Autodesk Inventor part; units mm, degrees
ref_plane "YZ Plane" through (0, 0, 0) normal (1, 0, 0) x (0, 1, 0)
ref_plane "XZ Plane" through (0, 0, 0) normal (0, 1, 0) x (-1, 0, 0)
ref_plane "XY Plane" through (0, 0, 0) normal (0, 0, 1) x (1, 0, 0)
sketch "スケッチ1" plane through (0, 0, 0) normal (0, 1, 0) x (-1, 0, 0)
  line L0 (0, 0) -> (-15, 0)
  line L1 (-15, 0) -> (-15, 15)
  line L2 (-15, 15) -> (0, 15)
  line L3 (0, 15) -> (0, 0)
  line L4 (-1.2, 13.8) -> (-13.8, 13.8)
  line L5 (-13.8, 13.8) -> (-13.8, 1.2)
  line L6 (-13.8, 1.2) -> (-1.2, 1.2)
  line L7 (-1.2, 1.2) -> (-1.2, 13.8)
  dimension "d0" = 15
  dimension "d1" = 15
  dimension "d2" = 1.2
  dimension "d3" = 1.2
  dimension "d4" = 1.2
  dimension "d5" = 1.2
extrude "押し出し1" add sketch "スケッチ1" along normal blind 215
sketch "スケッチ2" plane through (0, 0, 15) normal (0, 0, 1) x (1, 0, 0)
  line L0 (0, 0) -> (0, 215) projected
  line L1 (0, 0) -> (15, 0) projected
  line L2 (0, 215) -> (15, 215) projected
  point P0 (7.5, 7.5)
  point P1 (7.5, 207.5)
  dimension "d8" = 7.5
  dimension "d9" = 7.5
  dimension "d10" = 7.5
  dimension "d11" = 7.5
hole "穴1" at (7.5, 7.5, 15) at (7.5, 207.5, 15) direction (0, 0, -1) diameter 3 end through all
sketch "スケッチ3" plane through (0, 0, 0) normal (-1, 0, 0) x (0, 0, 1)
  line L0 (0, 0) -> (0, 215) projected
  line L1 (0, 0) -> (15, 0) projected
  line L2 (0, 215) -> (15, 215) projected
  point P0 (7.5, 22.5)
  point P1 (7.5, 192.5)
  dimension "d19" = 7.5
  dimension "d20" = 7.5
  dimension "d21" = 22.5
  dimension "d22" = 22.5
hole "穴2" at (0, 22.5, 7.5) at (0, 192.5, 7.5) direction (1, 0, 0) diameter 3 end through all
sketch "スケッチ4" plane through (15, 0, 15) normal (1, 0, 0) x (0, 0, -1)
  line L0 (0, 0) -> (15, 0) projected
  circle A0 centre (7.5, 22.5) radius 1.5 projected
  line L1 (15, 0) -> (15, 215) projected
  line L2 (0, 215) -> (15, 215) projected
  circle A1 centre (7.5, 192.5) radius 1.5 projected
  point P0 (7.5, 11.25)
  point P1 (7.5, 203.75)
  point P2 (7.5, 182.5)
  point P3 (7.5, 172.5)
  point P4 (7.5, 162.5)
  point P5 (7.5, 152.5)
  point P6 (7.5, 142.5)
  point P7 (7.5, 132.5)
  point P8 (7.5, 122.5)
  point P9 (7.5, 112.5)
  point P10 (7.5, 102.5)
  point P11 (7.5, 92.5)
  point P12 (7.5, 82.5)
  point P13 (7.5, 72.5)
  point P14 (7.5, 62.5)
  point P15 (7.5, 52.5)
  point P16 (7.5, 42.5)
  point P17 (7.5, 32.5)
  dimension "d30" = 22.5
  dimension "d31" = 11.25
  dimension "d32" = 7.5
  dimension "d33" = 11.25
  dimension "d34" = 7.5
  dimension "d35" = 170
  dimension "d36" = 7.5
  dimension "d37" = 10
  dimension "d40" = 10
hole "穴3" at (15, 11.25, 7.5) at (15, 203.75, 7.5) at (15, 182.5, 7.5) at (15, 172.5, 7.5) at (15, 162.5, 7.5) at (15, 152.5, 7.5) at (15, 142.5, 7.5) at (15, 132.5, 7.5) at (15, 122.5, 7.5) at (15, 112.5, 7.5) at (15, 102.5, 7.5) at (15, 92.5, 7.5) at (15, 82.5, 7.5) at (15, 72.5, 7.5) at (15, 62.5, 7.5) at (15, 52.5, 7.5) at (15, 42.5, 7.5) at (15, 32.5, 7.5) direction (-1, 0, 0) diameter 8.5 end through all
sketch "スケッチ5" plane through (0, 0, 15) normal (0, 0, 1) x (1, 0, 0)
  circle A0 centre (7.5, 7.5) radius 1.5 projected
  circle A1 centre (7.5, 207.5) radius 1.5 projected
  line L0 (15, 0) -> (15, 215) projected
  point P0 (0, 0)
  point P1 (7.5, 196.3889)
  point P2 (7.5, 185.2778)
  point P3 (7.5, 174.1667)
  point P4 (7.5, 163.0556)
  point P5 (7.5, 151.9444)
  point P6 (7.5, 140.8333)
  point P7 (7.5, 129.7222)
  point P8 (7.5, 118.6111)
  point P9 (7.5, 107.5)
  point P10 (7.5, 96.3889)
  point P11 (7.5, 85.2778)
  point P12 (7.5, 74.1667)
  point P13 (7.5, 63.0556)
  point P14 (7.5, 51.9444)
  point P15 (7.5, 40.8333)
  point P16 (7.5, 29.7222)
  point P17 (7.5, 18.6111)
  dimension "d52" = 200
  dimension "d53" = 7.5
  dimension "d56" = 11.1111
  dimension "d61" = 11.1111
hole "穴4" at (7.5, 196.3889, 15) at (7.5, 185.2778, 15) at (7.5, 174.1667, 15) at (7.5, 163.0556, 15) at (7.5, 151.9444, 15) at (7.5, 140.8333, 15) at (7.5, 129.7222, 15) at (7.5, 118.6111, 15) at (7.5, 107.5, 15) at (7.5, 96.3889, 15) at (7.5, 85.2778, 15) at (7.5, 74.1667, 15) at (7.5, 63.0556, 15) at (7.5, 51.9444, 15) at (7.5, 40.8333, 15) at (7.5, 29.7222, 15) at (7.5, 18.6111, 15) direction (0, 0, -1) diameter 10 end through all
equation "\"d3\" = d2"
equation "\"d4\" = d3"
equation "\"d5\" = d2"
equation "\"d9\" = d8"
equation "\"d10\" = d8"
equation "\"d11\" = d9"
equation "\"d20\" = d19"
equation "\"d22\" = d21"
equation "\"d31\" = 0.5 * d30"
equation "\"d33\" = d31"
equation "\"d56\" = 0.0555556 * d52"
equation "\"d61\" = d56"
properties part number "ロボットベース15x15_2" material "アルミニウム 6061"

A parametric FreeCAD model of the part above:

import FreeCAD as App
import Part
import Sketcher

V = App.Vector
Q = App.Units.Quantity

doc = App.newDocument("Part")
body = doc.addObject("PartDesign::Body", "Body")

# Sketch on XZ plane
sketch1 = body.newObject("Sketcher::SketchObject", "Sketch")
sketch1.AttachmentSupport = (doc.getObject("XZ_Plane"), [""])
sketch1.MapMode = "FlatFace"
sketch1.addGeometry(Part.LineSegment(V(15, 0, 0), V(0, 0, 0)), False)
sketch1.addGeometry(Part.LineSegment(V(0, 0, 0), V(0, 15, 0)), False)
sketch1.addGeometry(Part.LineSegment(V(0, 15, 0), V(15, 15, 0)), False)
sketch1.addGeometry(Part.LineSegment(V(15, 15, 0), V(15, 0, 0)), False)
sketch1.addGeometry(Part.LineSegment(V(14, 14, 0), V(1, 14, 0)), False)
sketch1.addGeometry(Part.LineSegment(V(1, 14, 0), V(1, 1, 0)), False)
sketch1.addGeometry(Part.LineSegment(V(1, 1, 0), V(14, 1, 0)), False)
sketch1.addGeometry(Part.LineSegment(V(14, 1, 0), V(14, 14, 0)), False)
sketch1.addConstraint(Sketcher.Constraint("Coincident", 0, 2, 1, 1))
sketch1.addConstraint(Sketcher.Constraint("Coincident", 1, 2, 2, 1))
sketch1.addConstraint(Sketcher.Constraint("Coincident", 2, 2, 3, 1))
sketch1.addConstraint(Sketcher.Constraint("Coincident", 3, 2, 0, 1))
sketch1.addConstraint(Sketcher.Constraint("Coincident", 4, 2, 5, 1))
sketch1.addConstraint(Sketcher.Constraint("Coincident", 5, 2, 6, 1))
sketch1.addConstraint(Sketcher.Constraint("Coincident", 6, 2, 7, 1))
sketch1.addConstraint(Sketcher.Constraint("Coincident", 7, 2, 4, 1))
sketch1.addConstraint(Sketcher.Constraint("Horizontal", 0))
sketch1.addConstraint(Sketcher.Constraint("Vertical", 1))
sketch1.addConstraint(Sketcher.Constraint("Horizontal", 2))
sketch1.addConstraint(Sketcher.Constraint("Vertical", 3))
sketch1.addConstraint(Sketcher.Constraint("Horizontal", 4))
sketch1.addConstraint(Sketcher.Constraint("Vertical", 5))
sketch1.addConstraint(Sketcher.Constraint("Horizontal", 6))
sketch1.addConstraint(Sketcher.Constraint("Vertical", 7))
sketch1.addConstraint(Sketcher.Constraint("Coincident", 0, 2, -1, 1))
sketch1.addConstraint(Sketcher.Constraint("Equal", 2, 1))
sketch1.addConstraint(Sketcher.Constraint("Equal", 6, 5))
sketch1.addConstraint(Sketcher.Constraint("DistanceX", 0, 2, 0, 1, Q("15 mm")))
sketch1.addConstraint(Sketcher.Constraint("DistanceX", -1, 1, 4, 2, Q("1.2 mm")))
sketch1.addConstraint(Sketcher.Constraint("DistanceY", -1, 1, 5, 2, Q("1.2 mm")))
sketch1.addConstraint(Sketcher.Constraint("DistanceY", 4, 2, 1, 2, Q("1.2 mm")))
pad1 = body.newObject("PartDesign::Pad", "Pad")
pad1.Profile = sketch1
pad1.Length = 215
pad1.Reversed = True

# Sketch on XY plane
sketch2 = body.newObject("Sketcher::SketchObject", "Sketch001")
sketch2.AttachmentSupport = (doc.getObject("XY_Plane"), [""])
sketch2.MapMode = "FlatFace"
sketch2.AttachmentOffset = App.Placement(V(0, 0, 15), App.Rotation())
sketch2.addGeometry(Part.Circle(V(7.5, 7.5, 0), V(0, 0, 1), 1.5), False)
sketch2.addGeometry(Part.Circle(V(7.5, 207.5, 0), V(0, 0, 1), 1.5), False)
sketch2.addConstraint(Sketcher.Constraint("Equal", 0, 1))
sketch2.addConstraint(Sketcher.Constraint("Vertical", 0, 3, 1, 3))
sketch2.addConstraint(Sketcher.Constraint("Diameter", 0, Q("3 mm")))
sketch2.addConstraint(Sketcher.Constraint("DistanceY", 0, 3, 1, 3, Q("200 mm")))
sketch2.addConstraint(Sketcher.Constraint("DistanceX", -1, 1, 0, 3, Q("7.5 mm")))
sketch2.addConstraint(Sketcher.Constraint("DistanceY", -1, 1, 0, 3, Q("7.5 mm")))
doc.recompute()
hole = body.newObject("PartDesign::Hole", "Hole")
hole.Profile = sketch2
hole.ThreadType = "None"
hole.Diameter = 3
hole.DepthType = "ThroughAll"

# Sketch on YZ plane
sketch3 = body.newObject("Sketcher::SketchObject", "Sketch002")
sketch3.AttachmentSupport = (doc.getObject("YZ_Plane"), [""])
sketch3.MapMode = "FlatFace"
sketch3.addGeometry(Part.Circle(V(22.5, 7.5, 0), V(0, 0, 1), 1.5), False)
sketch3.addGeometry(Part.Circle(V(192.5, 7.5, 0), V(0, 0, 1), 1.5), False)
sketch3.addConstraint(Sketcher.Constraint("Equal", 0, 1))
sketch3.addConstraint(Sketcher.Constraint("Horizontal", 0, 3, 1, 3))
sketch3.addConstraint(Sketcher.Constraint("Diameter", 0, Q("3 mm")))
sketch3.addConstraint(Sketcher.Constraint("DistanceX", 0, 3, 1, 3, Q("170 mm")))
sketch3.addConstraint(Sketcher.Constraint("DistanceX", -1, 1, 0, 3, Q("22.5 mm")))
sketch3.addConstraint(Sketcher.Constraint("DistanceY", -1, 1, 0, 3, Q("7.5 mm")))
doc.recompute()
hole2 = body.newObject("PartDesign::Hole", "Hole001")
hole2.Profile = sketch3
hole2.ThreadType = "None"
hole2.Diameter = 3
hole2.DepthType = "ThroughAll"
hole2.Reversed = True

# Sketch on YZ plane
sketch4 = body.newObject("Sketcher::SketchObject", "Sketch003")
sketch4.AttachmentSupport = (doc.getObject("YZ_Plane"), [""])
sketch4.MapMode = "FlatFace"
sketch4.AttachmentOffset = App.Placement(V(0, 0, 15), App.Rotation())
sketch4.addGeometry(Part.Circle(V(11.2, 7.5, 0), V(0, 0, 1), 4.2), False)
sketch4.addGeometry(Part.Circle(V(203.8, 7.5, 0), V(0, 0, 1), 4.2), False)
sketch4.addGeometry(Part.Circle(V(182.5, 7.5, 0), V(0, 0, 1), 4.2), False)
sketch4.addGeometry(Part.Circle(V(172.5, 7.5, 0), V(0, 0, 1), 4.2), False)
sketch4.addGeometry(Part.Circle(V(162.5, 7.5, 0), V(0, 0, 1), 4.2), False)
sketch4.addGeometry(Part.Circle(V(152.5, 7.5, 0), V(0, 0, 1), 4.2), False)
sketch4.addGeometry(Part.Circle(V(142.5, 7.5, 0), V(0, 0, 1), 4.2), False)
sketch4.addGeometry(Part.Circle(V(132.5, 7.5, 0), V(0, 0, 1), 4.2), False)
sketch4.addGeometry(Part.Circle(V(122.5, 7.5, 0), V(0, 0, 1), 4.2), False)
sketch4.addGeometry(Part.Circle(V(112.5, 7.5, 0), V(0, 0, 1), 4.2), False)
sketch4.addGeometry(Part.Circle(V(102.5, 7.5, 0), V(0, 0, 1), 4.2), False)
sketch4.addGeometry(Part.Circle(V(92.5, 7.5, 0), V(0, 0, 1), 4.2), False)
sketch4.addGeometry(Part.Circle(V(82.5, 7.5, 0), V(0, 0, 1), 4.2), False)
sketch4.addGeometry(Part.Circle(V(72.5, 7.5, 0), V(0, 0, 1), 4.2), False)
sketch4.addGeometry(Part.Circle(V(62.5, 7.5, 0), V(0, 0, 1), 4.2), False)
sketch4.addGeometry(Part.Circle(V(52.5, 7.5, 0), V(0, 0, 1), 4.2), False)
sketch4.addGeometry(Part.Circle(V(42.5, 7.5, 0), V(0, 0, 1), 4.2), False)
sketch4.addGeometry(Part.Circle(V(32.5, 7.5, 0), V(0, 0, 1), 4.2), False)
sketch4.addConstraint(Sketcher.Constraint("Equal", 0, 1))
sketch4.addConstraint(Sketcher.Constraint("Equal", 1, 2))
sketch4.addConstraint(Sketcher.Constraint("Equal", 2, 3))
sketch4.addConstraint(Sketcher.Constraint("Equal", 3, 4))
sketch4.addConstraint(Sketcher.Constraint("Equal", 4, 5))
sketch4.addConstraint(Sketcher.Constraint("Equal", 5, 6))
sketch4.addConstraint(Sketcher.Constraint("Equal", 6, 7))
sketch4.addConstraint(Sketcher.Constraint("Equal", 7, 8))
sketch4.addConstraint(Sketcher.Constraint("Equal", 8, 9))
sketch4.addConstraint(Sketcher.Constraint("Equal", 9, 10))
sketch4.addConstraint(Sketcher.Constraint("Equal", 10, 11))
sketch4.addConstraint(Sketcher.Constraint("Equal", 11, 12))
sketch4.addConstraint(Sketcher.Constraint("Equal", 12, 13))
sketch4.addConstraint(Sketcher.Constraint("Equal", 13, 14))
sketch4.addConstraint(Sketcher.Constraint("Equal", 14, 15))
sketch4.addConstraint(Sketcher.Constraint("Equal", 15, 16))
sketch4.addConstraint(Sketcher.Constraint("Equal", 16, 17))
sketch4.addConstraint(Sketcher.Constraint("Horizontal", 0, 3, 1, 3))
sketch4.addConstraint(Sketcher.Constraint("Horizontal", 1, 3, 2, 3))
sketch4.addConstraint(Sketcher.Constraint("Horizontal", 2, 3, 3, 3))
sketch4.addConstraint(Sketcher.Constraint("Horizontal", 3, 3, 4, 3))
sketch4.addConstraint(Sketcher.Constraint("Horizontal", 4, 3, 5, 3))
sketch4.addConstraint(Sketcher.Constraint("Horizontal", 5, 3, 6, 3))
sketch4.addConstraint(Sketcher.Constraint("Horizontal", 6, 3, 7, 3))
sketch4.addConstraint(Sketcher.Constraint("Horizontal", 7, 3, 8, 3))
sketch4.addConstraint(Sketcher.Constraint("Horizontal", 8, 3, 9, 3))
sketch4.addConstraint(Sketcher.Constraint("Horizontal", 9, 3, 10, 3))
sketch4.addConstraint(Sketcher.Constraint("Horizontal", 10, 3, 11, 3))
sketch4.addConstraint(Sketcher.Constraint("Horizontal", 11, 3, 12, 3))
sketch4.addConstraint(Sketcher.Constraint("Horizontal", 12, 3, 13, 3))
sketch4.addConstraint(Sketcher.Constraint("Horizontal", 13, 3, 14, 3))
sketch4.addConstraint(Sketcher.Constraint("Horizontal", 14, 3, 15, 3))
sketch4.addConstraint(Sketcher.Constraint("Horizontal", 15, 3, 16, 3))
sketch4.addConstraint(Sketcher.Constraint("Horizontal", 16, 3, 17, 3))
sketch4.addConstraint(Sketcher.Constraint("Diameter", 0, Q("8.5 mm")))
sketch4.addConstraint(Sketcher.Constraint("DistanceX", 3, 3, 2, 3, Q("10 mm")))
sketch4.addConstraint(Sketcher.Constraint("DistanceX", 4, 3, 3, 3, Q("10 mm")))
sketch4.addConstraint(Sketcher.Constraint("DistanceX", 5, 3, 4, 3, Q("10 mm")))
sketch4.addConstraint(Sketcher.Constraint("DistanceX", 6, 3, 5, 3, Q("10 mm")))
sketch4.addConstraint(Sketcher.Constraint("DistanceX", 7, 3, 6, 3, Q("10 mm")))
sketch4.addConstraint(Sketcher.Constraint("DistanceX", 8, 3, 7, 3, Q("10 mm")))
sketch4.addConstraint(Sketcher.Constraint("DistanceX", 9, 3, 8, 3, Q("10 mm")))
sketch4.addConstraint(Sketcher.Constraint("DistanceX", 10, 3, 9, 3, Q("10 mm")))
sketch4.addConstraint(Sketcher.Constraint("DistanceX", 11, 3, 10, 3, Q("10 mm")))
sketch4.addConstraint(Sketcher.Constraint("DistanceX", 12, 3, 11, 3, Q("10 mm")))
sketch4.addConstraint(Sketcher.Constraint("DistanceX", 13, 3, 12, 3, Q("10 mm")))
sketch4.addConstraint(Sketcher.Constraint("DistanceX", 14, 3, 13, 3, Q("10 mm")))
sketch4.addConstraint(Sketcher.Constraint("DistanceX", 15, 3, 14, 3, Q("10 mm")))
sketch4.addConstraint(Sketcher.Constraint("DistanceX", 16, 3, 15, 3, Q("10 mm")))
sketch4.addConstraint(Sketcher.Constraint("DistanceX", 17, 3, 16, 3, Q("10 mm")))
sketch4.addConstraint(Sketcher.Constraint("DistanceY", -1, 1, 0, 3, Q("7.5 mm")))
sketch4.addConstraint(Sketcher.Constraint("DistanceX", -1, 1, 2, 3, Q("182.5 mm")))
sketch4.addConstraint(Sketcher.Constraint("DistanceX", 0, 3, 1, 3, Q("192.5 mm")))
sketch4.addConstraint(Sketcher.Constraint("DistanceX", -1, 1, 0, 3, Q("11.25 mm")))
doc.recompute()
hole3 = body.newObject("PartDesign::Hole", "Hole002")
hole3.Profile = sketch4
hole3.ThreadType = "None"
hole3.Diameter = 8.5
hole3.DepthType = "ThroughAll"

# Sketch on XY plane
sketch5 = body.newObject("Sketcher::SketchObject", "Sketch004")
sketch5.AttachmentSupport = (doc.getObject("XY_Plane"), [""])
sketch5.MapMode = "FlatFace"
sketch5.AttachmentOffset = App.Placement(V(0, 0, 15), App.Rotation())
sketch5.addGeometry(Part.Circle(V(8, 196, 0), V(0, 0, 1), 5), False)
sketch5.addGeometry(Part.Circle(V(8, 185, 0), V(0, 0, 1), 5), False)
sketch5.addGeometry(Part.Circle(V(8, 174, 0), V(0, 0, 1), 5), False)
sketch5.addGeometry(Part.Circle(V(8, 163, 0), V(0, 0, 1), 5), False)
sketch5.addGeometry(Part.Circle(V(8, 152, 0), V(0, 0, 1), 5), False)
sketch5.addGeometry(Part.Circle(V(8, 141, 0), V(0, 0, 1), 5), False)
sketch5.addGeometry(Part.Circle(V(8, 130, 0), V(0, 0, 1), 5), False)
sketch5.addGeometry(Part.Circle(V(8, 119, 0), V(0, 0, 1), 5), False)
sketch5.addGeometry(Part.Circle(V(8, 108, 0), V(0, 0, 1), 5), False)
sketch5.addGeometry(Part.Circle(V(8, 96, 0), V(0, 0, 1), 5), False)
sketch5.addGeometry(Part.Circle(V(8, 85, 0), V(0, 0, 1), 5), False)
sketch5.addGeometry(Part.Circle(V(8, 74, 0), V(0, 0, 1), 5), False)
sketch5.addGeometry(Part.Circle(V(8, 63, 0), V(0, 0, 1), 5), False)
sketch5.addGeometry(Part.Circle(V(8, 52, 0), V(0, 0, 1), 5), False)
sketch5.addGeometry(Part.Circle(V(8, 41, 0), V(0, 0, 1), 5), False)
sketch5.addGeometry(Part.Circle(V(8, 30, 0), V(0, 0, 1), 5), False)
sketch5.addGeometry(Part.Circle(V(8, 19, 0), V(0, 0, 1), 5), False)
sketch5.addConstraint(Sketcher.Constraint("Equal", 0, 1))
sketch5.addConstraint(Sketcher.Constraint("Equal", 1, 2))
sketch5.addConstraint(Sketcher.Constraint("Equal", 2, 3))
sketch5.addConstraint(Sketcher.Constraint("Equal", 3, 4))
sketch5.addConstraint(Sketcher.Constraint("Equal", 4, 5))
sketch5.addConstraint(Sketcher.Constraint("Equal", 5, 6))
sketch5.addConstraint(Sketcher.Constraint("Equal", 6, 7))
sketch5.addConstraint(Sketcher.Constraint("Equal", 7, 8))
sketch5.addConstraint(Sketcher.Constraint("Equal", 8, 9))
sketch5.addConstraint(Sketcher.Constraint("Equal", 9, 10))
sketch5.addConstraint(Sketcher.Constraint("Equal", 10, 11))
sketch5.addConstraint(Sketcher.Constraint("Equal", 11, 12))
sketch5.addConstraint(Sketcher.Constraint("Equal", 12, 13))
sketch5.addConstraint(Sketcher.Constraint("Equal", 13, 14))
sketch5.addConstraint(Sketcher.Constraint("Equal", 14, 15))
sketch5.addConstraint(Sketcher.Constraint("Equal", 15, 16))
sketch5.addConstraint(Sketcher.Constraint("Vertical", 0, 3, 1, 3))
sketch5.addConstraint(Sketcher.Constraint("Vertical", 1, 3, 2, 3))
sketch5.addConstraint(Sketcher.Constraint("Vertical", 2, 3, 3, 3))
sketch5.addConstraint(Sketcher.Constraint("Vertical", 3, 3, 4, 3))
sketch5.addConstraint(Sketcher.Constraint("Vertical", 4, 3, 5, 3))
sketch5.addConstraint(Sketcher.Constraint("Vertical", 5, 3, 6, 3))
sketch5.addConstraint(Sketcher.Constraint("Vertical", 6, 3, 7, 3))
sketch5.addConstraint(Sketcher.Constraint("Vertical", 7, 3, 8, 3))
sketch5.addConstraint(Sketcher.Constraint("Vertical", 8, 3, 9, 3))
sketch5.addConstraint(Sketcher.Constraint("Vertical", 9, 3, 10, 3))
sketch5.addConstraint(Sketcher.Constraint("Vertical", 10, 3, 11, 3))
sketch5.addConstraint(Sketcher.Constraint("Vertical", 11, 3, 12, 3))
sketch5.addConstraint(Sketcher.Constraint("Vertical", 12, 3, 13, 3))
sketch5.addConstraint(Sketcher.Constraint("Vertical", 13, 3, 14, 3))
sketch5.addConstraint(Sketcher.Constraint("Vertical", 14, 3, 15, 3))
sketch5.addConstraint(Sketcher.Constraint("Vertical", 15, 3, 16, 3))
sketch5.addConstraint(Sketcher.Constraint("Diameter", 0, Q("10 mm")))
sketch5.addConstraint(Sketcher.Constraint("DistanceX", -1, 1, 0, 3, Q("7.5 mm")))
sketch5.addConstraint(Sketcher.Constraint("DistanceY", -1, 1, 8, 3, Q("107.5 mm")))
sketch5.addConstraint(Sketcher.Constraint("DistanceY", -1, 1, 0, 3, Q("196.389 mm")))
sketch5.addConstraint(Sketcher.Constraint("DistanceY", -1, 1, 7, 3, Q("118.611 mm")))
sketch5.addConstraint(Sketcher.Constraint("DistanceY", -1, 1, 9, 3, Q("96.389 mm")))
sketch5.addConstraint(Sketcher.Constraint("DistanceY", -1, 1, 16, 3, Q("18.611 mm")))
sketch5.addConstraint(Sketcher.Constraint("DistanceY", 1, 3, 0, 3, Q("11.111 mm")))
sketch5.addConstraint(Sketcher.Constraint("DistanceY", 2, 3, 1, 3, Q("11.111 mm")))
sketch5.addConstraint(Sketcher.Constraint("DistanceY", 3, 3, 2, 3, Q("11.111 mm")))
sketch5.addConstraint(Sketcher.Constraint("DistanceY", 5, 3, 4, 3, Q("11.111 mm")))
sketch5.addConstraint(Sketcher.Constraint("DistanceY", 6, 3, 5, 3, Q("11.111 mm")))
sketch5.addConstraint(Sketcher.Constraint("DistanceY", 7, 3, 6, 3, Q("11.111 mm")))
sketch5.addConstraint(Sketcher.Constraint("DistanceY", 10, 3, 9, 3, Q("11.111 mm")))
sketch5.addConstraint(Sketcher.Constraint("DistanceY", 11, 3, 10, 3, Q("11.111 mm")))
sketch5.addConstraint(Sketcher.Constraint("DistanceY", 12, 3, 11, 3, Q("11.111 mm")))
sketch5.addConstraint(Sketcher.Constraint("DistanceY", 14, 3, 13, 3, Q("11.111 mm")))
sketch5.addConstraint(Sketcher.Constraint("DistanceY", 15, 3, 14, 3, Q("11.111 mm")))
sketch5.addConstraint(Sketcher.Constraint("DistanceY", 16, 3, 15, 3, Q("11.111 mm")))
doc.recompute()
hole4 = body.newObject("PartDesign::Hole", "Hole003")
hole4.Profile = sketch5
hole4.ThreadType = "None"
hole4.Diameter = 10
hole4.DepthType = "ThroughAll"

doc.recompute()
